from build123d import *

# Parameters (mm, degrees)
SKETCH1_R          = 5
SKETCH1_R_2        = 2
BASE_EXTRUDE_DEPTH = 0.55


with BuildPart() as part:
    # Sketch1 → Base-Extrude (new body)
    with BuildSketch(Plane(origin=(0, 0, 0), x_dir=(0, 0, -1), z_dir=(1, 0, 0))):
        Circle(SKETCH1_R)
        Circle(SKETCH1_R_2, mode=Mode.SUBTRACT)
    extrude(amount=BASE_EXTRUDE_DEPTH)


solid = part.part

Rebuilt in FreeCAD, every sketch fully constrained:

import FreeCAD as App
import Part
import Sketcher

doc = App.newDocument("Part")
params = doc.addObject("Spreadsheet::Sheet", "Params")
for row, (alias, value) in enumerate([
    ("sketch1_diameter", "10 mm"),
    ("sketch1_diameter2", "4 mm"),
    ("pad1_length", "0.55 mm"),
], start=1):
    params.set(f"A{row}", alias)
    params.set(f"B{row}", "=" + value)
    params.setAlias(f"B{row}", alias)

body = doc.addObject("PartDesign::Body", "Body")

# Sketch on YZ plane
sketch1 = doc.addObject("Sketcher::SketchObject", "Sketch")
body.addObject(sketch1)
sketch1.AttachmentSupport = (doc.YZ_Plane, [""])
sketch1.MapMode = "FlatFace"
sketch1.addGeometry([
    Part.Circle(App.Vector(0, 0, 0), App.Vector(0, 0, 1), 5),
    Part.Circle(App.Vector(0, 0, 0), App.Vector(0, 0, 1), 2),
], False)
sketch1.addConstraint([
    Sketcher.Constraint("Coincident", 0, 3, -1, 1),
    Sketcher.Constraint("Coincident", 1, 3, -1, 1),
    Sketcher.Constraint("Diameter", 0, 10.0),
    Sketcher.Constraint("Diameter", 1, 4.0),
])
sketch1.setExpression("Constraints[2]", "Params.sketch1_diameter")
sketch1.setExpression("Constraints[3]", "Params.sketch1_diameter2")
pad1 = doc.addObject("PartDesign::Pad", "Pad")
body.addObject(pad1)
pad1.Profile = sketch1
pad1.setExpression("Length", "Params.pad1_length")

doc.recompute()
